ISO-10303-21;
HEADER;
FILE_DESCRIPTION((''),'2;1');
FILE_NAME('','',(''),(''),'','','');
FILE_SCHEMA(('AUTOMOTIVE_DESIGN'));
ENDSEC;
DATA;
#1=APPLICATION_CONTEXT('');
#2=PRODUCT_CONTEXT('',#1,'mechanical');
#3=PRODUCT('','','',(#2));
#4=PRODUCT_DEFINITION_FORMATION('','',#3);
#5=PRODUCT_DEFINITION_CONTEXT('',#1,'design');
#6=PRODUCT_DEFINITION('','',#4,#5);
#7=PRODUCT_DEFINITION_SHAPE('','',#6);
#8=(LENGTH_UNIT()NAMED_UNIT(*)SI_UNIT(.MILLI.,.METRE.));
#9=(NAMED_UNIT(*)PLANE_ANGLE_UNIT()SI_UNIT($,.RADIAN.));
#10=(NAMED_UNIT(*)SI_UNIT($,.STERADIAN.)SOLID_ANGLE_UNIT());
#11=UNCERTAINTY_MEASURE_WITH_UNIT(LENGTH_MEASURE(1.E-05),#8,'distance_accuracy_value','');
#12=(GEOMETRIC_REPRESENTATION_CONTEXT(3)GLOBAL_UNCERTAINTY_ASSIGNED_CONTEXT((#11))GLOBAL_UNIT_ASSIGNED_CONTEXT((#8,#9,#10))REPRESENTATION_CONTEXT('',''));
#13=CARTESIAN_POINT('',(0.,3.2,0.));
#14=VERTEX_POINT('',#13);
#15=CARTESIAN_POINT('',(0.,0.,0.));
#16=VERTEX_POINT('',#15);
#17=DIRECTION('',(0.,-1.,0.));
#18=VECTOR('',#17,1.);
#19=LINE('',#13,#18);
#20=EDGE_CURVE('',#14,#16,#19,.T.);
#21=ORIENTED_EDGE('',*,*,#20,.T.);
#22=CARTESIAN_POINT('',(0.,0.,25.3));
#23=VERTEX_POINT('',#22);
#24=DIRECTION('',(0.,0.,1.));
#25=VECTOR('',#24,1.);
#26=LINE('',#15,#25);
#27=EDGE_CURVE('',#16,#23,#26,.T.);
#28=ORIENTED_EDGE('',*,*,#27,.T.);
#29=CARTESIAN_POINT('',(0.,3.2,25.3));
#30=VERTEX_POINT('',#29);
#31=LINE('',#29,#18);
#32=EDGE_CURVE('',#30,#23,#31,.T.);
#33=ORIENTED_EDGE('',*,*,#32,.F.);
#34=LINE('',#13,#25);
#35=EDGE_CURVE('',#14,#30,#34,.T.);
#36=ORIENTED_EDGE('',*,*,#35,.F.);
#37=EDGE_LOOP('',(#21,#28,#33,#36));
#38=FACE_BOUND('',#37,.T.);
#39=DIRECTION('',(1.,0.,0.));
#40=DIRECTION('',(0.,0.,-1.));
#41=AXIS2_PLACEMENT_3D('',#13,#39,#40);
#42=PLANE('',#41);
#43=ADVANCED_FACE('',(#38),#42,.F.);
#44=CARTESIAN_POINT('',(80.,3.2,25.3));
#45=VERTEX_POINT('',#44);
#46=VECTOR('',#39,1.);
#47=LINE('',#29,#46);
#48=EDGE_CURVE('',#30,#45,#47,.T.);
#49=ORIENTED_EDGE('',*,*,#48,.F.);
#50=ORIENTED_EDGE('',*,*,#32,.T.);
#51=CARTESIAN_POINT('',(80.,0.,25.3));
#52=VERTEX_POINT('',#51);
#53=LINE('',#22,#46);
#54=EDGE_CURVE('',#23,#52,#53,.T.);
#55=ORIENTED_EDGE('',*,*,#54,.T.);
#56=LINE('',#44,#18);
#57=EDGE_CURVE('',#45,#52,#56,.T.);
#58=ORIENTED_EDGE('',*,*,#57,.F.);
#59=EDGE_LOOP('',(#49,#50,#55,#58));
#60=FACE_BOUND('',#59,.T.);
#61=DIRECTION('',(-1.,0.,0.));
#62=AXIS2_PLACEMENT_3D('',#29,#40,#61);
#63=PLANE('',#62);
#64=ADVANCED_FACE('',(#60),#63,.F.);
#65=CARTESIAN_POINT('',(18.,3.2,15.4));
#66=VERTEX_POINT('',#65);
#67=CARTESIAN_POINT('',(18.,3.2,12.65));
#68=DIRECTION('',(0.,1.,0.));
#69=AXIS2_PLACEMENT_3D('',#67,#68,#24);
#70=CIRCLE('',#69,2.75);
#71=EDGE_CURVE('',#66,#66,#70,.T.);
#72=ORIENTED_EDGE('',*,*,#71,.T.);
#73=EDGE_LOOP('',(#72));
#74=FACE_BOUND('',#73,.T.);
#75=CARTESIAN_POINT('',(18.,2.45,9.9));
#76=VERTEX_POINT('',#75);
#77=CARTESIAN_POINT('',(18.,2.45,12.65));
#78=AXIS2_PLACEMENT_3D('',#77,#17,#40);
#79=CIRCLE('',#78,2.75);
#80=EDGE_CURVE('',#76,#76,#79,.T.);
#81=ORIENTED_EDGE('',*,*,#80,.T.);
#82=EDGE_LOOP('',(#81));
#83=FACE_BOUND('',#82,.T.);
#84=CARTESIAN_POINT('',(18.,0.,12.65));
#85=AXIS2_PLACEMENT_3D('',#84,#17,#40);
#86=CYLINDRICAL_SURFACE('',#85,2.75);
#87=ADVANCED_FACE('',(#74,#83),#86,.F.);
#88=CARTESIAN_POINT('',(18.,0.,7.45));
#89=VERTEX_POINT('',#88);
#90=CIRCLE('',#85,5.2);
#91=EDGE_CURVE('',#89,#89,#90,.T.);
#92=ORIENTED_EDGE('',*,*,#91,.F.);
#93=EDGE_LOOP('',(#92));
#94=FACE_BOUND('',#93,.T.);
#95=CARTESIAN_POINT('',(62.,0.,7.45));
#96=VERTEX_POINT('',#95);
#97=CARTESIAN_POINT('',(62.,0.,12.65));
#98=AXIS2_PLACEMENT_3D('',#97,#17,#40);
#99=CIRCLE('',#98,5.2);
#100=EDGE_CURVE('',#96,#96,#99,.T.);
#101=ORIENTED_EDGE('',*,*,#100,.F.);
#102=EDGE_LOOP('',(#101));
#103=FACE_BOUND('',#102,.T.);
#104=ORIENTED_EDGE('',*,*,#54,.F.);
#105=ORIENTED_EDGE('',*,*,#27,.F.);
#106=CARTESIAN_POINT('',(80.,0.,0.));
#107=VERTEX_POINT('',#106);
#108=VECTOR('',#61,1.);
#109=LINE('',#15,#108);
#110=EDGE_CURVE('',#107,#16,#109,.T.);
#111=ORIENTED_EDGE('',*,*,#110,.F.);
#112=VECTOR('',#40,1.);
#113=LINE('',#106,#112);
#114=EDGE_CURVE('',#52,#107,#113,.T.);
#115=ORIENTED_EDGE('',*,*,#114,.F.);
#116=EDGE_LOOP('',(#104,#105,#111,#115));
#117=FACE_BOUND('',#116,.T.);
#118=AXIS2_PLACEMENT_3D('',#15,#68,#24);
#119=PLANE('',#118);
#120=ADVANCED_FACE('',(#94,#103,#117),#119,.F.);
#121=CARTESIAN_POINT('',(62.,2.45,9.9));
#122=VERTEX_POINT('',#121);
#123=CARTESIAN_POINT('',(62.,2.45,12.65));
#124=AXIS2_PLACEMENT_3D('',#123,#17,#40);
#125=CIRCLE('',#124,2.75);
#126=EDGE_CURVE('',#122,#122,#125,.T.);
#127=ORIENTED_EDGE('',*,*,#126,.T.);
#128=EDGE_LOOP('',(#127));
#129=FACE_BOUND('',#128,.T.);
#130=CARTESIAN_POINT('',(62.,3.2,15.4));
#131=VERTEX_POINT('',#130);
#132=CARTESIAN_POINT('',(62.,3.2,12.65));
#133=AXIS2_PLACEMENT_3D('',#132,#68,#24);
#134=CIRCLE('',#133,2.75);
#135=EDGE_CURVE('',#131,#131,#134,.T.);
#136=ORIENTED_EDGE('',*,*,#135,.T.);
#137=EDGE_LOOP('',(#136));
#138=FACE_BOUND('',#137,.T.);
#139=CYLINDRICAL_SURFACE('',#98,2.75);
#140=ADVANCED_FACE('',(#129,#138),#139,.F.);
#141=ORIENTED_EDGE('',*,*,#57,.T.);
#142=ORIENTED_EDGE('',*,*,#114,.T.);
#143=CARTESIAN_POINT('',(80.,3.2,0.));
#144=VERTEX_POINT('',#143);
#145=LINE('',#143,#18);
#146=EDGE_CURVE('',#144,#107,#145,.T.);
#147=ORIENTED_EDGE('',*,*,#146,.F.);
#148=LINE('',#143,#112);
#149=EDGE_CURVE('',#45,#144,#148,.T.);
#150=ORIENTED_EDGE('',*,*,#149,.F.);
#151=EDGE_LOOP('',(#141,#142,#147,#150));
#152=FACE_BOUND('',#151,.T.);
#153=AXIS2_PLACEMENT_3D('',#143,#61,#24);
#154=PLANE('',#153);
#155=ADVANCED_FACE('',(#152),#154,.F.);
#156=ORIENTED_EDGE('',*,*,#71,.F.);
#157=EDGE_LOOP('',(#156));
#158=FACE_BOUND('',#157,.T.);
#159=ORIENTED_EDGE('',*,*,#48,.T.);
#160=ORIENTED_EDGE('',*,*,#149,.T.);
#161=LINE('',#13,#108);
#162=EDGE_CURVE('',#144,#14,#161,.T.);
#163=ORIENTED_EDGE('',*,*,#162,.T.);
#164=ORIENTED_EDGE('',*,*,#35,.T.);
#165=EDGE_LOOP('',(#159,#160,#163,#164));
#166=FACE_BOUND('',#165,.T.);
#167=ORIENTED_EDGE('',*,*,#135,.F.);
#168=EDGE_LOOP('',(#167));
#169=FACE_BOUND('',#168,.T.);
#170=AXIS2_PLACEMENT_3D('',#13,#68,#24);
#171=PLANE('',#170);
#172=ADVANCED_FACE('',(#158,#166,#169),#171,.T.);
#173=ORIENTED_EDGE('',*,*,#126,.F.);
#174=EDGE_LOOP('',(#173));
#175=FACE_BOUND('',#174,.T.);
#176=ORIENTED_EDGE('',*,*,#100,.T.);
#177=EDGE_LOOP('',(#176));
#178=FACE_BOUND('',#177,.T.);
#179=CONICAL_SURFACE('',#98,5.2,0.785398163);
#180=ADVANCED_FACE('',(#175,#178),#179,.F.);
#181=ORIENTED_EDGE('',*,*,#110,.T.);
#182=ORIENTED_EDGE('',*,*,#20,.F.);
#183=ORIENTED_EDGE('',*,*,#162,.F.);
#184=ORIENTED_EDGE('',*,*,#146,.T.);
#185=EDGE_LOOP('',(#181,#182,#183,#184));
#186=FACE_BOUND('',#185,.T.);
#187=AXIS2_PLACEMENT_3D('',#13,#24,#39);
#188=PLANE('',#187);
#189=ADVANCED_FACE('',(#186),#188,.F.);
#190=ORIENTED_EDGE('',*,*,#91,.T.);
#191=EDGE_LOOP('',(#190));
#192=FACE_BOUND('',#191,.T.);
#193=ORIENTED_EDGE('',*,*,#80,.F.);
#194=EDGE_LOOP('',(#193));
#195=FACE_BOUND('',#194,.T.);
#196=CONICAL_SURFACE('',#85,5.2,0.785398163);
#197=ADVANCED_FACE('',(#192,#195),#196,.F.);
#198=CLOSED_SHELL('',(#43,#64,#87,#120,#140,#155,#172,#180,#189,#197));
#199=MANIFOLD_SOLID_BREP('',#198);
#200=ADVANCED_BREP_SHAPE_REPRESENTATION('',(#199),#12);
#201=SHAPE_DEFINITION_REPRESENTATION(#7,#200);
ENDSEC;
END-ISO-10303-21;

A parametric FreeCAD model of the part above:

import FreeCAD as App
import Part
import Sketcher

V = App.Vector
Q = App.Units.Quantity


def add_polygon(sketch, points):
    """Adds a closed chain of lines whose ends are joined by coincident constraints."""
    first, n = sketch.GeometryCount, len(points)
    for a, b in zip(points, points[1:] + points[:1]):
        sketch.addGeometry(Part.LineSegment(App.Vector(*a, 0), App.Vector(*b, 0)), False)
    for i in range(n):
        sketch.addConstraint(Sketcher.Constraint("Coincident", first + i, 2, first + (i + 1) % n, 1))

doc = App.newDocument("Part")
body = doc.addObject("PartDesign::Body", "Body")

# Sketch on XZ plane
sketch1 = body.newObject("Sketcher::SketchObject", "Sketch")
sketch1.AttachmentSupport = (doc.getObject("XZ_Plane"), [""])
sketch1.MapMode = "FlatFace"
add_polygon(sketch1, [(0, 0), (0, 25), (80, 25), (80, 0)])  # lines 0-3
sketch1.addConstraint([
    Sketcher.Constraint("Vertical", 0),
    Sketcher.Constraint("Horizontal", 1),
    Sketcher.Constraint("Vertical", 2),
    Sketcher.Constraint("Horizontal", 3),
    Sketcher.Constraint("Coincident", 3, 2, -1, 1),
    Sketcher.Constraint("DistanceX", 1, 1, 1, 2, Q("80 mm")),
    Sketcher.Constraint("DistanceY", 0, 1, 0, 2, Q("25.3 mm")),
])
pad1 = body.newObject("PartDesign::Pad", "Pad")
pad1.Profile = sketch1
pad1.Length = 3.2
pad1.Reversed = True

# Sketch on YZ plane
sketch2 = body.newObject("Sketcher::SketchObject", "Sketch001")
sketch2.AttachmentSupport = (doc.getObject("YZ_Plane"), [""])
sketch2.MapMode = "FlatFace"
sketch2.AttachmentOffset = App.Placement(V(0, 0, 62), App.Rotation())
add_polygon(sketch2, [(3.2, 12.7), (0, 12.7), (0, 7.5), (2.5, 9.9), (3.2, 9.9)])  # lines 0-4
sketch2.addGeometry(Part.LineSegment(V(0, 12.7, 0), V(3.2, 12.7, 0)), True)  # axis
sketch2.addConstraint([
    Sketcher.Constraint("Horizontal", 0),
    Sketcher.Constraint("Vertical", 1),
    Sketcher.Constraint("Horizontal", 3),
    Sketcher.Constraint("Vertical", 4),
    Sketcher.Constraint("Horizontal", 5),
    Sketcher.Constraint("Coincident", 5, 1, 0, 2),
    Sketcher.Constraint("PointOnObject", 0, 2, -2),
    Sketcher.Constraint("Vertical", 3, 2, 5, 2),
    Sketcher.Constraint("Angle", 2, Q("45 deg")),
    Sketcher.Constraint("DistanceX", 0, 2, 0, 1, Q("3.2 mm")),
    Sketcher.Constraint("DistanceY", 1, 2, 1, 1, Q("5.2 mm")),
    Sketcher.Constraint("DistanceX", 3, 1, 3, 2, Q("0.75 mm")),
    Sketcher.Constraint("DistanceY", -1, 1, 2, 2, Q("9.9 mm")),
])
groove = body.newObject("PartDesign::Groove", "Groove")
groove.Profile = sketch2
groove.ReferenceAxis = (sketch2, ["Axis0"])
groove.Angle = 360
doc.recompute()

linearpattern = body.newObject("PartDesign::LinearPattern", "LinearPattern")
linearpattern.Originals = [groove]
linearpattern.Direction = (doc.getObject("X_Axis"), [""])
linearpattern.Mode = "offset"
linearpattern.Offset = 44
linearpattern.Occurrences = 2
linearpattern.Reversed = True
body.Tip = linearpattern

doc.recompute()
